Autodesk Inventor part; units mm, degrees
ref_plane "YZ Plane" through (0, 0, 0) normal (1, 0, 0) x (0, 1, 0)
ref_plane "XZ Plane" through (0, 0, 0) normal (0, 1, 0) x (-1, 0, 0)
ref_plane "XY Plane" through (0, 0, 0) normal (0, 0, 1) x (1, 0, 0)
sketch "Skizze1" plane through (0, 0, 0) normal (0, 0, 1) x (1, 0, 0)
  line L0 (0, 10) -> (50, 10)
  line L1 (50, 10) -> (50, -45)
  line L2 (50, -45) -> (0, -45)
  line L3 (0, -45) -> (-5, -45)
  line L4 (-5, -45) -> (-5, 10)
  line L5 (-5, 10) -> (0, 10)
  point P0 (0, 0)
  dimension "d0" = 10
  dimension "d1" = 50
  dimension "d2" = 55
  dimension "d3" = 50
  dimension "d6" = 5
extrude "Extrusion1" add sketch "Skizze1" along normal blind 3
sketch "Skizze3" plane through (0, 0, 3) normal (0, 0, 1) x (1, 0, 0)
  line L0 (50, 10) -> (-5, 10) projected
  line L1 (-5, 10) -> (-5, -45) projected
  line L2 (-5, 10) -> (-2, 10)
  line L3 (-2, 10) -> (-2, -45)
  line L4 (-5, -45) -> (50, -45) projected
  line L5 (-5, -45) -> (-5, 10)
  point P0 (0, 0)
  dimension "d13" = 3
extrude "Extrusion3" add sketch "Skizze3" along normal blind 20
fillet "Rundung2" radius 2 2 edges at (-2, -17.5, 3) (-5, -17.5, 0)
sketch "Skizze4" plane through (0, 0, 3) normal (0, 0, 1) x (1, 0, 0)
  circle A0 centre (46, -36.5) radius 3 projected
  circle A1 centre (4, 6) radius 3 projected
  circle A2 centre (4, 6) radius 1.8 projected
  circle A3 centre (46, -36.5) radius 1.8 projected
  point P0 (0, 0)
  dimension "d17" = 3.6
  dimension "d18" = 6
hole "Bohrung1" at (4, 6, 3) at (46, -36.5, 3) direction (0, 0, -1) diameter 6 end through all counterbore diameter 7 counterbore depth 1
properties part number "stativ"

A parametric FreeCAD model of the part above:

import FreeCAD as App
import Part
import Sketcher
Q = App.Units.Quantity


def edges_at(feature, points):
    """Names of the edges that pass closest to the given points."""
    edges = feature.Shape.Edges
    near = lambda p: min(range(len(edges)), key=lambda i: edges[i].distToShape(Part.Vertex(*p))[0])
    return sorted({f"Edge{near(p) + 1}" for p in points})

doc = App.newDocument("Part")
body = doc.addObject("PartDesign::Body", "Body")

sketch1 = doc.addObject("Sketcher::SketchObject", "Sketch")
body.addObject(sketch1)
sketch1.AttachmentSupport = (doc.XY_Plane, [""])
sketch1.MapMode = "FlatFace"
sketch1.addGeometry([
    Part.LineSegment(App.Vector(50, 10, 0), App.Vector(-5, 10, 0)),
    Part.LineSegment(App.Vector(-5, 10, 0), App.Vector(-5, -45, 0)),
    Part.LineSegment(App.Vector(-5, -45, 0), App.Vector(50, -45, 0)),
    Part.LineSegment(App.Vector(50, -45, 0), App.Vector(50, 10, 0)),
], False)
sketch1.addConstraint([
    Sketcher.Constraint("Coincident", 0, 2, 1, 1),
    Sketcher.Constraint("Coincident", 1, 2, 2, 1),
    Sketcher.Constraint("Coincident", 2, 2, 3, 1),
    Sketcher.Constraint("Coincident", 3, 2, 0, 1),
    Sketcher.Constraint("Horizontal", 0),
    Sketcher.Constraint("Vertical", 1),
    Sketcher.Constraint("Horizontal", 2),
    Sketcher.Constraint("Vertical", 3),
    Sketcher.Constraint("Equal", 2, 1),
    Sketcher.Constraint("DistanceX", 0, 2, 0, 1, Q("55 mm")),
    Sketcher.Constraint("DistanceX", 0, 2, -1, 1, Q("5 mm")),
    Sketcher.Constraint("DistanceY", -1, 1, 0, 2, Q("10 mm")),
])
pad1 = doc.addObject("PartDesign::Pad", "Pad")
body.addObject(pad1)
pad1.Profile = sketch1
pad1.Length = 3

sketch2 = doc.addObject("Sketcher::SketchObject", "Sketch001")
body.addObject(sketch2)
sketch2.AttachmentSupport = (doc.XY_Plane, [""])
sketch2.MapMode = "FlatFace"
sketch2.AttachmentOffset = App.Placement(App.Vector(0, 0, 3), App.Rotation())
sketch2.addGeometry([
    Part.LineSegment(App.Vector(-2, -45, 0), App.Vector(-2, 10, 0)),
    Part.LineSegment(App.Vector(-2, 10, 0), App.Vector(-5, 10, 0)),
    Part.LineSegment(App.Vector(-5, 10, 0), App.Vector(-5, -45, 0)),
    Part.LineSegment(App.Vector(-5, -45, 0), App.Vector(-2, -45, 0)),
], False)
sketch2.addConstraint([
    Sketcher.Constraint("Coincident", 0, 2, 1, 1),
    Sketcher.Constraint("Coincident", 1, 2, 2, 1),
    Sketcher.Constraint("Coincident", 2, 2, 3, 1),
    Sketcher.Constraint("Coincident", 3, 2, 0, 1),
    Sketcher.Constraint("Vertical", 0),
    Sketcher.Constraint("Horizontal", 1),
    Sketcher.Constraint("Vertical", 2),
    Sketcher.Constraint("Horizontal", 3),
    Sketcher.Constraint("DistanceX", 1, 2, 1, 1, Q("3 mm")),
    Sketcher.Constraint("DistanceY", 0, 1, 0, 2, Q("55 mm")),
    Sketcher.Constraint("DistanceX", 0, 2, -1, 1, Q("2 mm")),
    Sketcher.Constraint("DistanceY", -1, 1, 0, 2, Q("10 mm")),
])
pad2 = doc.addObject("PartDesign::Pad", "Pad001")
body.addObject(pad2)
pad2.Profile = sketch2
pad2.Length = 20
doc.recompute()

fillet = doc.addObject("PartDesign::Fillet", "Fillet")
body.addObject(fillet)
fillet.Base = (pad2, edges_at(pad2, [(-2, -17.5, 3), (-5, -17.5, 0)]))
fillet.Radius = 2

sketch3 = doc.addObject("Sketcher::SketchObject", "Sketch002")
body.addObject(sketch3)
sketch3.AttachmentSupport = (doc.XY_Plane, [""])
sketch3.MapMode = "FlatFace"
sketch3.AttachmentOffset = App.Placement(App.Vector(0, 0, 3), App.Rotation())
sketch3.addGeometry([
    Part.Circle(App.Vector(4, 6, 0), App.Vector(0, 0, 1), 3),
    Part.Circle(App.Vector(46, -36.5, 0), App.Vector(0, 0, 1), 3),
], False)
sketch3.addConstraint([
    Sketcher.Constraint("Equal", 0, 1),
    Sketcher.Constraint("Diameter", 0, Q("6 mm")),
    Sketcher.Constraint("DistanceX", -1, 1, 0, 3, Q("4 mm")),
    Sketcher.Constraint("DistanceY", -1, 1, 0, 3, Q("6 mm")),
    Sketcher.Constraint("DistanceX", -1, 1, 1, 3, Q("46 mm")),
    Sketcher.Constraint("DistanceY", 1, 3, -1, 1, Q("36.5 mm")),
])
doc.recompute()
hole = doc.addObject("PartDesign::Hole", "Hole")
body.addObject(hole)
hole.Profile = sketch3
hole.ThreadType = "None"
hole.Diameter = 6
hole.DepthType = "ThroughAll"
hole.HoleCutType = "Counterbore"
hole.HoleCutDiameter = 7
hole.HoleCutDepth = 1

doc.recompute()
